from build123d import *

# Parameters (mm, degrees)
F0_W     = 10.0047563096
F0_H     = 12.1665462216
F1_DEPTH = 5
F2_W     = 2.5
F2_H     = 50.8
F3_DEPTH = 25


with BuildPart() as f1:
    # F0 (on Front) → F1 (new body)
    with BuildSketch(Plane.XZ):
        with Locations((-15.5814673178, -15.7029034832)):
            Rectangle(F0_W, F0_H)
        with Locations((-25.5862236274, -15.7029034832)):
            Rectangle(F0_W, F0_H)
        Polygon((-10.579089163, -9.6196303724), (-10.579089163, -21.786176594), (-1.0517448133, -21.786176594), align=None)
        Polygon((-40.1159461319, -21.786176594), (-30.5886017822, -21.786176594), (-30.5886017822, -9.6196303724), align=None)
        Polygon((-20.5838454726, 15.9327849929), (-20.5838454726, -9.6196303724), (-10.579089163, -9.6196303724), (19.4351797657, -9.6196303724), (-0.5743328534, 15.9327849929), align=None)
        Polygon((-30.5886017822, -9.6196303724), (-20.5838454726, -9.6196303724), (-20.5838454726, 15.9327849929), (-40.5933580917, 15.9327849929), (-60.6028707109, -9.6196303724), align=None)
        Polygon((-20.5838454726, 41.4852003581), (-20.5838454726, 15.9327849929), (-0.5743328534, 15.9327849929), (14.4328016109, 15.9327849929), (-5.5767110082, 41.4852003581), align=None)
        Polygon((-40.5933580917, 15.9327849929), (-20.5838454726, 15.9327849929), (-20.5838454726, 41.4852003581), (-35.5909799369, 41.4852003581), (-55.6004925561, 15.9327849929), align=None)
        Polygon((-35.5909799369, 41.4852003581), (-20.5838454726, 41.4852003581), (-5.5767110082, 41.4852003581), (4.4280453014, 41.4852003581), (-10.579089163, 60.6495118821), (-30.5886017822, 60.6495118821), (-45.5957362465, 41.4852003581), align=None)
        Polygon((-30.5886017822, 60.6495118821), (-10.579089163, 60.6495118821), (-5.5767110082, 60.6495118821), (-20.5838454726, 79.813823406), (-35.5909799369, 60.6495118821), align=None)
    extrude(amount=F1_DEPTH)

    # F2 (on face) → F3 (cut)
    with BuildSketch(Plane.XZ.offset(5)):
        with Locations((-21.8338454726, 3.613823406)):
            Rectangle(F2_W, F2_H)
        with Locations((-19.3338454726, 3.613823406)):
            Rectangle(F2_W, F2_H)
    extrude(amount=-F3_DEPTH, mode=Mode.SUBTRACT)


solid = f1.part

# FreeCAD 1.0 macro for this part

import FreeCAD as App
import Part
import Sketcher

V = App.Vector


def add_polygon(sketch, points):
    """Adds a closed chain of lines whose ends are joined by coincident constraints."""
    first, n = sketch.GeometryCount, len(points)
    for a, b in zip(points, points[1:] + points[:1]):
        sketch.addGeometry(Part.LineSegment(App.Vector(*a, 0), App.Vector(*b, 0)), False)
    for i in range(n):
        sketch.addConstraint(Sketcher.Constraint("Coincident", first + i, 2, first + (i + 1) % n, 1))

doc = App.newDocument("Part")
body = doc.addObject("PartDesign::Body", "Body")

# Sketch on XZ plane
sketch1 = body.newObject("Sketcher::SketchObject", "Sketch")
sketch1.AttachmentSupport = (doc.getObject("XZ_Plane"), [""])
sketch1.MapMode = "FlatFace"
add_polygon(sketch1, [(-31, -10), (-40, -22), (-1, -22), (-11, -10), (19, -10), (-1, 16), (14, 16), (-6, 41), (4, 41), (-11, 61), (-6, 61), (-21, 80), (-36, 61), (-31, 61), (-46, 41), (-36, 41), (-56, 16), (-41, 16), (-61, -10)])  # lines 0-18
sketch1.addConstraint([
    Sketcher.Constraint("Horizontal", 1),
    Sketcher.Constraint("Horizontal", 3),
    Sketcher.Constraint("Horizontal", 5),
    Sketcher.Constraint("Horizontal", 7),
    Sketcher.Constraint("Horizontal", 9),
    Sketcher.Constraint("Horizontal", 12),
    Sketcher.Constraint("Horizontal", 14),
    Sketcher.Constraint("Horizontal", 16),
    Sketcher.Constraint("Horizontal", 18),
    Sketcher.Constraint("Parallel", 2, 4),
    Sketcher.Constraint("Parallel", 4, 6),
    Sketcher.Constraint("Parallel", 6, 8),
    Sketcher.Constraint("Parallel", 8, 10),
    Sketcher.Constraint("Parallel", 0, 11),
    Sketcher.Constraint("Parallel", 11, 13),
    Sketcher.Constraint("Parallel", 13, 15),
    Sketcher.Constraint("Parallel", 15, 17),
    Sketcher.Constraint("Horizontal", 9, 2, 11, 2),
    Sketcher.Constraint("Horizontal", 7, 2, 13, 2),
    Sketcher.Constraint("Horizontal", 5, 2, 15, 2),
    Sketcher.Constraint("Horizontal", 3, 2, 17, 2),
    Sketcher.Constraint("Vertical", 2, 2, 8, 2),
    Sketcher.Constraint("Vertical", 6, 2, 9, 2),
    Sketcher.Constraint("Vertical", 11, 2, 14, 2),
    Sketcher.Constraint("Vertical", 12, 2, 18, 2),
    Sketcher.Constraint("Equal", 9, 12),
    Sketcher.Constraint("Equal", 7, 14),
    Sketcher.Constraint("Equal", 5, 16),
    Sketcher.Constraint("Equal", 4, 6),
    Sketcher.Constraint("Equal", 8, 10),
    Sketcher.Constraint("DistanceX", 1, 1, 1, 2, 39.064201),
    Sketcher.Constraint("DistanceX", 3, 1, 3, 2, 30.014269),
    Sketcher.Constraint("DistanceX", 9, 1, 9, 2, 5.002378),
    Sketcher.Constraint("DistanceX", -1, 1, 5, 2, 14.432802),
    Sketcher.Constraint("DistanceY", -1, 1, 6, 2, 41.4852),
    Sketcher.Constraint("DistanceX", 12, 2, -1, 1, 30.588602),
    Sketcher.Constraint("DistanceX", 5, 1, 5, 2, 15.007134),
    Sketcher.Constraint("DistanceY", 2, 2, -1, 1, 9.61963),
])
pad1 = body.newObject("PartDesign::Pad", "Pad")
pad1.Profile = sketch1
pad1.Length = 5

# Sketch on XZ plane
sketch2 = body.newObject("Sketcher::SketchObject", "Sketch001")
sketch2.AttachmentSupport = (doc.getObject("XZ_Plane"), [""])
sketch2.MapMode = "FlatFace"
sketch2.AttachmentOffset = App.Placement(V(0, 0, 5), App.Rotation())
add_polygon(sketch2, [(-23, 29), (-23, -22), (-18, -22), (-18, 29)])  # lines 0-3
sketch2.addConstraint([
    Sketcher.Constraint("Vertical", 0),
    Sketcher.Constraint("Horizontal", 1),
    Sketcher.Constraint("Vertical", 2),
    Sketcher.Constraint("Horizontal", 3),
    Sketcher.Constraint("DistanceX", 1, 1, 1, 2, 5.0),
    Sketcher.Constraint("DistanceY", 0, 2, 0, 1, 50.8),
    Sketcher.Constraint("DistanceX", 0, 2, -1, 1, 23.083845),
    Sketcher.Constraint("DistanceY", 0, 2, -1, 1, 21.786177),
])
pocket1 = body.newObject("PartDesign::Pocket", "Pocket")
pocket1.Profile = sketch2
pocket1.Length = 25

doc.recompute()
